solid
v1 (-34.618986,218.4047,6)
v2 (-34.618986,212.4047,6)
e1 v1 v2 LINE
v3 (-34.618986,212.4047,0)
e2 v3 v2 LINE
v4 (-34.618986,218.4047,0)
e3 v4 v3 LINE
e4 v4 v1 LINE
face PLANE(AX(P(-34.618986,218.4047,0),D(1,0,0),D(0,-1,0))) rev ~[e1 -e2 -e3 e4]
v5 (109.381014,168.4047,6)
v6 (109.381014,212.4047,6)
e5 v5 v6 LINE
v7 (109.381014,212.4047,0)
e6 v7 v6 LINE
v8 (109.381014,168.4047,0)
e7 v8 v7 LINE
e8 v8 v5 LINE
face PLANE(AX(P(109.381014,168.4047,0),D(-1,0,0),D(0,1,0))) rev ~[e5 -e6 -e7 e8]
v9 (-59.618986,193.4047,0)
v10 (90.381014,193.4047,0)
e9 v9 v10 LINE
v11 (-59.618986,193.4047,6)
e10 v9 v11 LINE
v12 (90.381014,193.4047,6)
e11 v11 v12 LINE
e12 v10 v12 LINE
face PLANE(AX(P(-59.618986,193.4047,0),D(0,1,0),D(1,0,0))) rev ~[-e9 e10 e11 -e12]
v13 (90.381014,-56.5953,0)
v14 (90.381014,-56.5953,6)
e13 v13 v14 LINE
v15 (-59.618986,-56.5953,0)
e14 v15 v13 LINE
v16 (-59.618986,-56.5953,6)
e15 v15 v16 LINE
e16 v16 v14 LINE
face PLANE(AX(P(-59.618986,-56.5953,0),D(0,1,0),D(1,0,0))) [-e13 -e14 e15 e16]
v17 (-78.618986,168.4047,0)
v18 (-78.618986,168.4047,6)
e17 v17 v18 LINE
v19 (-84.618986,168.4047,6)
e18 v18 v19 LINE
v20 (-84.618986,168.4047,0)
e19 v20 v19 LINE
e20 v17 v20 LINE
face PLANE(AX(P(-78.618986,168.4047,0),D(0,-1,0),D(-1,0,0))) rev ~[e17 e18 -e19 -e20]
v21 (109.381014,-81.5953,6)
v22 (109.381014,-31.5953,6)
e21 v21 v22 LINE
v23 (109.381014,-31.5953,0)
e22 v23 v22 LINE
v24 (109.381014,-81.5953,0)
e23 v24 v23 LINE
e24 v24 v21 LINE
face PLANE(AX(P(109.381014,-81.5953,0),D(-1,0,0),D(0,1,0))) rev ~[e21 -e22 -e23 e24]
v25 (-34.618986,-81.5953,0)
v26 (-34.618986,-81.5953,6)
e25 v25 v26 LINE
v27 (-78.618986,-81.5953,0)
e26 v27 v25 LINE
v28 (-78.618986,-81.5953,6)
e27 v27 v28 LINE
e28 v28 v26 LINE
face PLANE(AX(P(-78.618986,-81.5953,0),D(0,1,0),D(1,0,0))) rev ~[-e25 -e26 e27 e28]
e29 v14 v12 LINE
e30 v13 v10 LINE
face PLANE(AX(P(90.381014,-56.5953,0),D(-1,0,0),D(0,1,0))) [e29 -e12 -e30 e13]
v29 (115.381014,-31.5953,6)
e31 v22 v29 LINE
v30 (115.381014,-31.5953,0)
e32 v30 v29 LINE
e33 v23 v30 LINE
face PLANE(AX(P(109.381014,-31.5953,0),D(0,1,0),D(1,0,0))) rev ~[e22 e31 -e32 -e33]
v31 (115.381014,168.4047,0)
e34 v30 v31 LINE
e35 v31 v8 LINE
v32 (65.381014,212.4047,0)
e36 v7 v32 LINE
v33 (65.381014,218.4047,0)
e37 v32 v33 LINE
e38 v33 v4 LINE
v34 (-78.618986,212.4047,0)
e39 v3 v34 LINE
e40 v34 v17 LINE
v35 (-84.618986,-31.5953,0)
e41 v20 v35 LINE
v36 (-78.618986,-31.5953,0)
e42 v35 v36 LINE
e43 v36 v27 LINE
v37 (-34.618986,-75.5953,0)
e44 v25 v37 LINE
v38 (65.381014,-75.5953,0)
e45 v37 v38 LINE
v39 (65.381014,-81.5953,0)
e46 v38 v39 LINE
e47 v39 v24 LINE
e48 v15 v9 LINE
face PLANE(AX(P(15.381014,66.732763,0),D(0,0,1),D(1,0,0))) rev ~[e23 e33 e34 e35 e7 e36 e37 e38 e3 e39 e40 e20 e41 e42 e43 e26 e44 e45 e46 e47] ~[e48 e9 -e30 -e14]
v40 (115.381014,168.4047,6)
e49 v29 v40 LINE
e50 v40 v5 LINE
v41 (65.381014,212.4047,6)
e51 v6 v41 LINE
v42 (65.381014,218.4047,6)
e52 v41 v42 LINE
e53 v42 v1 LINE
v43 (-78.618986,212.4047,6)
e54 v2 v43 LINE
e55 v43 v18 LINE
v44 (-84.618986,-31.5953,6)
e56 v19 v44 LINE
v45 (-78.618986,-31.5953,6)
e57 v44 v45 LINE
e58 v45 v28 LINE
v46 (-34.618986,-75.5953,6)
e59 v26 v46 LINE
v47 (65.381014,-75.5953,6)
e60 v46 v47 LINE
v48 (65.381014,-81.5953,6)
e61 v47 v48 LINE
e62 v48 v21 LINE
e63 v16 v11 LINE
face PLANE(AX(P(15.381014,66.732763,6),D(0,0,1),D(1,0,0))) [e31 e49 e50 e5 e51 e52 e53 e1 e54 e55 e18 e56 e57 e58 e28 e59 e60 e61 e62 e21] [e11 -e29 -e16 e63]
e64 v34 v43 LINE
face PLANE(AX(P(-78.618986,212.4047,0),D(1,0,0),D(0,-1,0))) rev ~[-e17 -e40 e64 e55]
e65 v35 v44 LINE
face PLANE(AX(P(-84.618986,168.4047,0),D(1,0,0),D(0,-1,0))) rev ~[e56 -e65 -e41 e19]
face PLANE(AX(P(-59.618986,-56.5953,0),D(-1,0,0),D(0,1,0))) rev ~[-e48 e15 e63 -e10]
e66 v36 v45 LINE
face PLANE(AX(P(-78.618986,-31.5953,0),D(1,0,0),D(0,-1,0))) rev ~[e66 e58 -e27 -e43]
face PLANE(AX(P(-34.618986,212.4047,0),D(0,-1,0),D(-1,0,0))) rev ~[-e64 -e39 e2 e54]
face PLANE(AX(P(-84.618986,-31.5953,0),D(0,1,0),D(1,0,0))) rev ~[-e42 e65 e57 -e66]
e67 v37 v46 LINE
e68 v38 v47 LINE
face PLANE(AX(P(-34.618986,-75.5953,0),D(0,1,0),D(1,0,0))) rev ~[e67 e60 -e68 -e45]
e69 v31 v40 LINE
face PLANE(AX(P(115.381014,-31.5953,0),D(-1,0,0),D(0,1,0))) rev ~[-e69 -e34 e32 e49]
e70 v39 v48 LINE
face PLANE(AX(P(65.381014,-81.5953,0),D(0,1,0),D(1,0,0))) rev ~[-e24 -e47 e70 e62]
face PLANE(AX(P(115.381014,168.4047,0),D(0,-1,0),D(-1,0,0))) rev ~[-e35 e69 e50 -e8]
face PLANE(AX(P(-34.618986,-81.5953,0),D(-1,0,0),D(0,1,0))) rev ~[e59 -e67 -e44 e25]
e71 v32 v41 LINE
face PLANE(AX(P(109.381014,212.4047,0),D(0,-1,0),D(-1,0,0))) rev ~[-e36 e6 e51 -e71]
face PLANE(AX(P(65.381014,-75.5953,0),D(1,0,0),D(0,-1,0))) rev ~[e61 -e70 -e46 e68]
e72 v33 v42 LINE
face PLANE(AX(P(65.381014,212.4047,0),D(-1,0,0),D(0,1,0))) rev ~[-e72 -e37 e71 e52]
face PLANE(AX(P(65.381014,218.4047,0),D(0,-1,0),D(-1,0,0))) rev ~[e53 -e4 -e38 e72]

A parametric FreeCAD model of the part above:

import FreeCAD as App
import Part
import Sketcher

V = App.Vector
Q = App.Units.Quantity


def add_polygon(sketch, points):
    """Adds a closed chain of lines whose ends are joined by coincident constraints."""
    first, n = sketch.GeometryCount, len(points)
    for a, b in zip(points, points[1:] + points[:1]):
        sketch.addGeometry(Part.LineSegment(App.Vector(*a, 0), App.Vector(*b, 0)), False)
    for i in range(n):
        sketch.addConstraint(Sketcher.Constraint("Coincident", first + i, 2, first + (i + 1) % n, 1))

doc = App.newDocument("Part")
body = doc.addObject("PartDesign::Body", "Body")

# Sketch on XY plane
sketch1 = doc.addObject("Sketcher::SketchObject", "Sketch")
body.addObject(sketch1)
sketch1.AttachmentSupport = (doc.XY_Plane, [""])
sketch1.MapMode = "FlatFace"
add_polygon(sketch1, [(-34.618986, 212.4047), (-78.618986, 212.4047), (-78.618986, 168.4047), (-84.618986, 168.4047), (-84.618986, -31.5953), (-78.618986, -31.5953), (-78.618986, -81.5953), (-34.618986, -81.5953), (-34.618986, -75.5953), (65.381014, -75.5953), (65.381014, -81.5953), (109.381014, -81.5953), (109.381014, -31.5953), (115.381014, -31.5953), (115.381014, 168.4047), (109.381014, 168.4047), (109.381014, 212.4047), (65.381014, 212.4047), (65.381014, 218.4047), (-34.618986, 218.4047)])  # lines 0-19
add_polygon(sketch1, [(90.381014, -56.5953), (-59.618986, -56.5953), (-59.618986, 193.4047), (90.381014, 193.4047)])  # lines 20-23
sketch1.addConstraint([
    Sketcher.Constraint("Horizontal", 0),
    Sketcher.Constraint("Vertical", 1),
    Sketcher.Constraint("Horizontal", 2),
    Sketcher.Constraint("Vertical", 3),
    Sketcher.Constraint("Horizontal", 4),
    Sketcher.Constraint("Vertical", 5),
    Sketcher.Constraint("Horizontal", 6),
    Sketcher.Constraint("Vertical", 7),
    Sketcher.Constraint("Horizontal", 8),
    Sketcher.Constraint("Vertical", 9),
    Sketcher.Constraint("Horizontal", 10),
    Sketcher.Constraint("Vertical", 11),
    Sketcher.Constraint("Horizontal", 12),
    Sketcher.Constraint("Vertical", 13),
    Sketcher.Constraint("Horizontal", 14),
    Sketcher.Constraint("Vertical", 15),
    Sketcher.Constraint("Horizontal", 16),
    Sketcher.Constraint("Vertical", 17),
    Sketcher.Constraint("Horizontal", 18),
    Sketcher.Constraint("Vertical", 19),
    Sketcher.Constraint("Horizontal", 20),
    Sketcher.Constraint("Vertical", 21),
    Sketcher.Constraint("Horizontal", 22),
    Sketcher.Constraint("Vertical", 23),
    Sketcher.Constraint("Horizontal", 6, 2, 9, 2),
    Sketcher.Constraint("Horizontal", 4, 2, 11, 2),
    Sketcher.Constraint("Horizontal", 2, 2, 13, 2),
    Sketcher.Constraint("Horizontal", 0, 2, 15, 2),
    Sketcher.Constraint("Vertical", 1, 2, 4, 2),
    Sketcher.Constraint("Vertical", 11, 2, 14, 2),
    Sketcher.Constraint("Vertical", 9, 2, 16, 2),
    Sketcher.Constraint("Vertical", 7, 2, 18, 2),
    Sketcher.Constraint("Equal", 6, 10),
    Sketcher.Constraint("Equal", 4, 12),
    Sketcher.Constraint("Equal", 16, 1),
    Sketcher.Constraint("Equal", 14, 7),
    Sketcher.Constraint("Equal", 9, 17),
    Sketcher.Constraint("DistanceX", 0, 2, 0, 1, Q("44 mm")),
    Sketcher.Constraint("DistanceX", 2, 2, 2, 1, Q("6 mm")),
    Sketcher.Constraint("DistanceX", 8, 1, 8, 2, Q("100 mm")),
    Sketcher.Constraint("DistanceX", 20, 2, 20, 1, Q("150 mm")),
    Sketcher.Constraint("DistanceY", 3, 2, 3, 1, Q("200 mm")),
    Sketcher.Constraint("DistanceY", 5, 2, 5, 1, Q("50 mm")),
    Sketcher.Constraint("DistanceY", 21, 1, 21, 2, Q("250 mm")),
    Sketcher.Constraint("DistanceX", 20, 2, 7, 2, Q("25 mm")),
    Sketcher.Constraint("DistanceY", 7, 2, 20, 2, Q("19 mm")),
    Sketcher.Constraint("DistanceY", -1, 1, 0, 2, Q("212.4047 mm")),
    Sketcher.Constraint("DistanceX", 0, 2, -1, 1, Q("78.618986 mm")),
])
pad1 = doc.addObject("PartDesign::Pad", "Pad")
body.addObject(pad1)
pad1.Profile = sketch1
pad1.Length = 6

doc.recompute()
